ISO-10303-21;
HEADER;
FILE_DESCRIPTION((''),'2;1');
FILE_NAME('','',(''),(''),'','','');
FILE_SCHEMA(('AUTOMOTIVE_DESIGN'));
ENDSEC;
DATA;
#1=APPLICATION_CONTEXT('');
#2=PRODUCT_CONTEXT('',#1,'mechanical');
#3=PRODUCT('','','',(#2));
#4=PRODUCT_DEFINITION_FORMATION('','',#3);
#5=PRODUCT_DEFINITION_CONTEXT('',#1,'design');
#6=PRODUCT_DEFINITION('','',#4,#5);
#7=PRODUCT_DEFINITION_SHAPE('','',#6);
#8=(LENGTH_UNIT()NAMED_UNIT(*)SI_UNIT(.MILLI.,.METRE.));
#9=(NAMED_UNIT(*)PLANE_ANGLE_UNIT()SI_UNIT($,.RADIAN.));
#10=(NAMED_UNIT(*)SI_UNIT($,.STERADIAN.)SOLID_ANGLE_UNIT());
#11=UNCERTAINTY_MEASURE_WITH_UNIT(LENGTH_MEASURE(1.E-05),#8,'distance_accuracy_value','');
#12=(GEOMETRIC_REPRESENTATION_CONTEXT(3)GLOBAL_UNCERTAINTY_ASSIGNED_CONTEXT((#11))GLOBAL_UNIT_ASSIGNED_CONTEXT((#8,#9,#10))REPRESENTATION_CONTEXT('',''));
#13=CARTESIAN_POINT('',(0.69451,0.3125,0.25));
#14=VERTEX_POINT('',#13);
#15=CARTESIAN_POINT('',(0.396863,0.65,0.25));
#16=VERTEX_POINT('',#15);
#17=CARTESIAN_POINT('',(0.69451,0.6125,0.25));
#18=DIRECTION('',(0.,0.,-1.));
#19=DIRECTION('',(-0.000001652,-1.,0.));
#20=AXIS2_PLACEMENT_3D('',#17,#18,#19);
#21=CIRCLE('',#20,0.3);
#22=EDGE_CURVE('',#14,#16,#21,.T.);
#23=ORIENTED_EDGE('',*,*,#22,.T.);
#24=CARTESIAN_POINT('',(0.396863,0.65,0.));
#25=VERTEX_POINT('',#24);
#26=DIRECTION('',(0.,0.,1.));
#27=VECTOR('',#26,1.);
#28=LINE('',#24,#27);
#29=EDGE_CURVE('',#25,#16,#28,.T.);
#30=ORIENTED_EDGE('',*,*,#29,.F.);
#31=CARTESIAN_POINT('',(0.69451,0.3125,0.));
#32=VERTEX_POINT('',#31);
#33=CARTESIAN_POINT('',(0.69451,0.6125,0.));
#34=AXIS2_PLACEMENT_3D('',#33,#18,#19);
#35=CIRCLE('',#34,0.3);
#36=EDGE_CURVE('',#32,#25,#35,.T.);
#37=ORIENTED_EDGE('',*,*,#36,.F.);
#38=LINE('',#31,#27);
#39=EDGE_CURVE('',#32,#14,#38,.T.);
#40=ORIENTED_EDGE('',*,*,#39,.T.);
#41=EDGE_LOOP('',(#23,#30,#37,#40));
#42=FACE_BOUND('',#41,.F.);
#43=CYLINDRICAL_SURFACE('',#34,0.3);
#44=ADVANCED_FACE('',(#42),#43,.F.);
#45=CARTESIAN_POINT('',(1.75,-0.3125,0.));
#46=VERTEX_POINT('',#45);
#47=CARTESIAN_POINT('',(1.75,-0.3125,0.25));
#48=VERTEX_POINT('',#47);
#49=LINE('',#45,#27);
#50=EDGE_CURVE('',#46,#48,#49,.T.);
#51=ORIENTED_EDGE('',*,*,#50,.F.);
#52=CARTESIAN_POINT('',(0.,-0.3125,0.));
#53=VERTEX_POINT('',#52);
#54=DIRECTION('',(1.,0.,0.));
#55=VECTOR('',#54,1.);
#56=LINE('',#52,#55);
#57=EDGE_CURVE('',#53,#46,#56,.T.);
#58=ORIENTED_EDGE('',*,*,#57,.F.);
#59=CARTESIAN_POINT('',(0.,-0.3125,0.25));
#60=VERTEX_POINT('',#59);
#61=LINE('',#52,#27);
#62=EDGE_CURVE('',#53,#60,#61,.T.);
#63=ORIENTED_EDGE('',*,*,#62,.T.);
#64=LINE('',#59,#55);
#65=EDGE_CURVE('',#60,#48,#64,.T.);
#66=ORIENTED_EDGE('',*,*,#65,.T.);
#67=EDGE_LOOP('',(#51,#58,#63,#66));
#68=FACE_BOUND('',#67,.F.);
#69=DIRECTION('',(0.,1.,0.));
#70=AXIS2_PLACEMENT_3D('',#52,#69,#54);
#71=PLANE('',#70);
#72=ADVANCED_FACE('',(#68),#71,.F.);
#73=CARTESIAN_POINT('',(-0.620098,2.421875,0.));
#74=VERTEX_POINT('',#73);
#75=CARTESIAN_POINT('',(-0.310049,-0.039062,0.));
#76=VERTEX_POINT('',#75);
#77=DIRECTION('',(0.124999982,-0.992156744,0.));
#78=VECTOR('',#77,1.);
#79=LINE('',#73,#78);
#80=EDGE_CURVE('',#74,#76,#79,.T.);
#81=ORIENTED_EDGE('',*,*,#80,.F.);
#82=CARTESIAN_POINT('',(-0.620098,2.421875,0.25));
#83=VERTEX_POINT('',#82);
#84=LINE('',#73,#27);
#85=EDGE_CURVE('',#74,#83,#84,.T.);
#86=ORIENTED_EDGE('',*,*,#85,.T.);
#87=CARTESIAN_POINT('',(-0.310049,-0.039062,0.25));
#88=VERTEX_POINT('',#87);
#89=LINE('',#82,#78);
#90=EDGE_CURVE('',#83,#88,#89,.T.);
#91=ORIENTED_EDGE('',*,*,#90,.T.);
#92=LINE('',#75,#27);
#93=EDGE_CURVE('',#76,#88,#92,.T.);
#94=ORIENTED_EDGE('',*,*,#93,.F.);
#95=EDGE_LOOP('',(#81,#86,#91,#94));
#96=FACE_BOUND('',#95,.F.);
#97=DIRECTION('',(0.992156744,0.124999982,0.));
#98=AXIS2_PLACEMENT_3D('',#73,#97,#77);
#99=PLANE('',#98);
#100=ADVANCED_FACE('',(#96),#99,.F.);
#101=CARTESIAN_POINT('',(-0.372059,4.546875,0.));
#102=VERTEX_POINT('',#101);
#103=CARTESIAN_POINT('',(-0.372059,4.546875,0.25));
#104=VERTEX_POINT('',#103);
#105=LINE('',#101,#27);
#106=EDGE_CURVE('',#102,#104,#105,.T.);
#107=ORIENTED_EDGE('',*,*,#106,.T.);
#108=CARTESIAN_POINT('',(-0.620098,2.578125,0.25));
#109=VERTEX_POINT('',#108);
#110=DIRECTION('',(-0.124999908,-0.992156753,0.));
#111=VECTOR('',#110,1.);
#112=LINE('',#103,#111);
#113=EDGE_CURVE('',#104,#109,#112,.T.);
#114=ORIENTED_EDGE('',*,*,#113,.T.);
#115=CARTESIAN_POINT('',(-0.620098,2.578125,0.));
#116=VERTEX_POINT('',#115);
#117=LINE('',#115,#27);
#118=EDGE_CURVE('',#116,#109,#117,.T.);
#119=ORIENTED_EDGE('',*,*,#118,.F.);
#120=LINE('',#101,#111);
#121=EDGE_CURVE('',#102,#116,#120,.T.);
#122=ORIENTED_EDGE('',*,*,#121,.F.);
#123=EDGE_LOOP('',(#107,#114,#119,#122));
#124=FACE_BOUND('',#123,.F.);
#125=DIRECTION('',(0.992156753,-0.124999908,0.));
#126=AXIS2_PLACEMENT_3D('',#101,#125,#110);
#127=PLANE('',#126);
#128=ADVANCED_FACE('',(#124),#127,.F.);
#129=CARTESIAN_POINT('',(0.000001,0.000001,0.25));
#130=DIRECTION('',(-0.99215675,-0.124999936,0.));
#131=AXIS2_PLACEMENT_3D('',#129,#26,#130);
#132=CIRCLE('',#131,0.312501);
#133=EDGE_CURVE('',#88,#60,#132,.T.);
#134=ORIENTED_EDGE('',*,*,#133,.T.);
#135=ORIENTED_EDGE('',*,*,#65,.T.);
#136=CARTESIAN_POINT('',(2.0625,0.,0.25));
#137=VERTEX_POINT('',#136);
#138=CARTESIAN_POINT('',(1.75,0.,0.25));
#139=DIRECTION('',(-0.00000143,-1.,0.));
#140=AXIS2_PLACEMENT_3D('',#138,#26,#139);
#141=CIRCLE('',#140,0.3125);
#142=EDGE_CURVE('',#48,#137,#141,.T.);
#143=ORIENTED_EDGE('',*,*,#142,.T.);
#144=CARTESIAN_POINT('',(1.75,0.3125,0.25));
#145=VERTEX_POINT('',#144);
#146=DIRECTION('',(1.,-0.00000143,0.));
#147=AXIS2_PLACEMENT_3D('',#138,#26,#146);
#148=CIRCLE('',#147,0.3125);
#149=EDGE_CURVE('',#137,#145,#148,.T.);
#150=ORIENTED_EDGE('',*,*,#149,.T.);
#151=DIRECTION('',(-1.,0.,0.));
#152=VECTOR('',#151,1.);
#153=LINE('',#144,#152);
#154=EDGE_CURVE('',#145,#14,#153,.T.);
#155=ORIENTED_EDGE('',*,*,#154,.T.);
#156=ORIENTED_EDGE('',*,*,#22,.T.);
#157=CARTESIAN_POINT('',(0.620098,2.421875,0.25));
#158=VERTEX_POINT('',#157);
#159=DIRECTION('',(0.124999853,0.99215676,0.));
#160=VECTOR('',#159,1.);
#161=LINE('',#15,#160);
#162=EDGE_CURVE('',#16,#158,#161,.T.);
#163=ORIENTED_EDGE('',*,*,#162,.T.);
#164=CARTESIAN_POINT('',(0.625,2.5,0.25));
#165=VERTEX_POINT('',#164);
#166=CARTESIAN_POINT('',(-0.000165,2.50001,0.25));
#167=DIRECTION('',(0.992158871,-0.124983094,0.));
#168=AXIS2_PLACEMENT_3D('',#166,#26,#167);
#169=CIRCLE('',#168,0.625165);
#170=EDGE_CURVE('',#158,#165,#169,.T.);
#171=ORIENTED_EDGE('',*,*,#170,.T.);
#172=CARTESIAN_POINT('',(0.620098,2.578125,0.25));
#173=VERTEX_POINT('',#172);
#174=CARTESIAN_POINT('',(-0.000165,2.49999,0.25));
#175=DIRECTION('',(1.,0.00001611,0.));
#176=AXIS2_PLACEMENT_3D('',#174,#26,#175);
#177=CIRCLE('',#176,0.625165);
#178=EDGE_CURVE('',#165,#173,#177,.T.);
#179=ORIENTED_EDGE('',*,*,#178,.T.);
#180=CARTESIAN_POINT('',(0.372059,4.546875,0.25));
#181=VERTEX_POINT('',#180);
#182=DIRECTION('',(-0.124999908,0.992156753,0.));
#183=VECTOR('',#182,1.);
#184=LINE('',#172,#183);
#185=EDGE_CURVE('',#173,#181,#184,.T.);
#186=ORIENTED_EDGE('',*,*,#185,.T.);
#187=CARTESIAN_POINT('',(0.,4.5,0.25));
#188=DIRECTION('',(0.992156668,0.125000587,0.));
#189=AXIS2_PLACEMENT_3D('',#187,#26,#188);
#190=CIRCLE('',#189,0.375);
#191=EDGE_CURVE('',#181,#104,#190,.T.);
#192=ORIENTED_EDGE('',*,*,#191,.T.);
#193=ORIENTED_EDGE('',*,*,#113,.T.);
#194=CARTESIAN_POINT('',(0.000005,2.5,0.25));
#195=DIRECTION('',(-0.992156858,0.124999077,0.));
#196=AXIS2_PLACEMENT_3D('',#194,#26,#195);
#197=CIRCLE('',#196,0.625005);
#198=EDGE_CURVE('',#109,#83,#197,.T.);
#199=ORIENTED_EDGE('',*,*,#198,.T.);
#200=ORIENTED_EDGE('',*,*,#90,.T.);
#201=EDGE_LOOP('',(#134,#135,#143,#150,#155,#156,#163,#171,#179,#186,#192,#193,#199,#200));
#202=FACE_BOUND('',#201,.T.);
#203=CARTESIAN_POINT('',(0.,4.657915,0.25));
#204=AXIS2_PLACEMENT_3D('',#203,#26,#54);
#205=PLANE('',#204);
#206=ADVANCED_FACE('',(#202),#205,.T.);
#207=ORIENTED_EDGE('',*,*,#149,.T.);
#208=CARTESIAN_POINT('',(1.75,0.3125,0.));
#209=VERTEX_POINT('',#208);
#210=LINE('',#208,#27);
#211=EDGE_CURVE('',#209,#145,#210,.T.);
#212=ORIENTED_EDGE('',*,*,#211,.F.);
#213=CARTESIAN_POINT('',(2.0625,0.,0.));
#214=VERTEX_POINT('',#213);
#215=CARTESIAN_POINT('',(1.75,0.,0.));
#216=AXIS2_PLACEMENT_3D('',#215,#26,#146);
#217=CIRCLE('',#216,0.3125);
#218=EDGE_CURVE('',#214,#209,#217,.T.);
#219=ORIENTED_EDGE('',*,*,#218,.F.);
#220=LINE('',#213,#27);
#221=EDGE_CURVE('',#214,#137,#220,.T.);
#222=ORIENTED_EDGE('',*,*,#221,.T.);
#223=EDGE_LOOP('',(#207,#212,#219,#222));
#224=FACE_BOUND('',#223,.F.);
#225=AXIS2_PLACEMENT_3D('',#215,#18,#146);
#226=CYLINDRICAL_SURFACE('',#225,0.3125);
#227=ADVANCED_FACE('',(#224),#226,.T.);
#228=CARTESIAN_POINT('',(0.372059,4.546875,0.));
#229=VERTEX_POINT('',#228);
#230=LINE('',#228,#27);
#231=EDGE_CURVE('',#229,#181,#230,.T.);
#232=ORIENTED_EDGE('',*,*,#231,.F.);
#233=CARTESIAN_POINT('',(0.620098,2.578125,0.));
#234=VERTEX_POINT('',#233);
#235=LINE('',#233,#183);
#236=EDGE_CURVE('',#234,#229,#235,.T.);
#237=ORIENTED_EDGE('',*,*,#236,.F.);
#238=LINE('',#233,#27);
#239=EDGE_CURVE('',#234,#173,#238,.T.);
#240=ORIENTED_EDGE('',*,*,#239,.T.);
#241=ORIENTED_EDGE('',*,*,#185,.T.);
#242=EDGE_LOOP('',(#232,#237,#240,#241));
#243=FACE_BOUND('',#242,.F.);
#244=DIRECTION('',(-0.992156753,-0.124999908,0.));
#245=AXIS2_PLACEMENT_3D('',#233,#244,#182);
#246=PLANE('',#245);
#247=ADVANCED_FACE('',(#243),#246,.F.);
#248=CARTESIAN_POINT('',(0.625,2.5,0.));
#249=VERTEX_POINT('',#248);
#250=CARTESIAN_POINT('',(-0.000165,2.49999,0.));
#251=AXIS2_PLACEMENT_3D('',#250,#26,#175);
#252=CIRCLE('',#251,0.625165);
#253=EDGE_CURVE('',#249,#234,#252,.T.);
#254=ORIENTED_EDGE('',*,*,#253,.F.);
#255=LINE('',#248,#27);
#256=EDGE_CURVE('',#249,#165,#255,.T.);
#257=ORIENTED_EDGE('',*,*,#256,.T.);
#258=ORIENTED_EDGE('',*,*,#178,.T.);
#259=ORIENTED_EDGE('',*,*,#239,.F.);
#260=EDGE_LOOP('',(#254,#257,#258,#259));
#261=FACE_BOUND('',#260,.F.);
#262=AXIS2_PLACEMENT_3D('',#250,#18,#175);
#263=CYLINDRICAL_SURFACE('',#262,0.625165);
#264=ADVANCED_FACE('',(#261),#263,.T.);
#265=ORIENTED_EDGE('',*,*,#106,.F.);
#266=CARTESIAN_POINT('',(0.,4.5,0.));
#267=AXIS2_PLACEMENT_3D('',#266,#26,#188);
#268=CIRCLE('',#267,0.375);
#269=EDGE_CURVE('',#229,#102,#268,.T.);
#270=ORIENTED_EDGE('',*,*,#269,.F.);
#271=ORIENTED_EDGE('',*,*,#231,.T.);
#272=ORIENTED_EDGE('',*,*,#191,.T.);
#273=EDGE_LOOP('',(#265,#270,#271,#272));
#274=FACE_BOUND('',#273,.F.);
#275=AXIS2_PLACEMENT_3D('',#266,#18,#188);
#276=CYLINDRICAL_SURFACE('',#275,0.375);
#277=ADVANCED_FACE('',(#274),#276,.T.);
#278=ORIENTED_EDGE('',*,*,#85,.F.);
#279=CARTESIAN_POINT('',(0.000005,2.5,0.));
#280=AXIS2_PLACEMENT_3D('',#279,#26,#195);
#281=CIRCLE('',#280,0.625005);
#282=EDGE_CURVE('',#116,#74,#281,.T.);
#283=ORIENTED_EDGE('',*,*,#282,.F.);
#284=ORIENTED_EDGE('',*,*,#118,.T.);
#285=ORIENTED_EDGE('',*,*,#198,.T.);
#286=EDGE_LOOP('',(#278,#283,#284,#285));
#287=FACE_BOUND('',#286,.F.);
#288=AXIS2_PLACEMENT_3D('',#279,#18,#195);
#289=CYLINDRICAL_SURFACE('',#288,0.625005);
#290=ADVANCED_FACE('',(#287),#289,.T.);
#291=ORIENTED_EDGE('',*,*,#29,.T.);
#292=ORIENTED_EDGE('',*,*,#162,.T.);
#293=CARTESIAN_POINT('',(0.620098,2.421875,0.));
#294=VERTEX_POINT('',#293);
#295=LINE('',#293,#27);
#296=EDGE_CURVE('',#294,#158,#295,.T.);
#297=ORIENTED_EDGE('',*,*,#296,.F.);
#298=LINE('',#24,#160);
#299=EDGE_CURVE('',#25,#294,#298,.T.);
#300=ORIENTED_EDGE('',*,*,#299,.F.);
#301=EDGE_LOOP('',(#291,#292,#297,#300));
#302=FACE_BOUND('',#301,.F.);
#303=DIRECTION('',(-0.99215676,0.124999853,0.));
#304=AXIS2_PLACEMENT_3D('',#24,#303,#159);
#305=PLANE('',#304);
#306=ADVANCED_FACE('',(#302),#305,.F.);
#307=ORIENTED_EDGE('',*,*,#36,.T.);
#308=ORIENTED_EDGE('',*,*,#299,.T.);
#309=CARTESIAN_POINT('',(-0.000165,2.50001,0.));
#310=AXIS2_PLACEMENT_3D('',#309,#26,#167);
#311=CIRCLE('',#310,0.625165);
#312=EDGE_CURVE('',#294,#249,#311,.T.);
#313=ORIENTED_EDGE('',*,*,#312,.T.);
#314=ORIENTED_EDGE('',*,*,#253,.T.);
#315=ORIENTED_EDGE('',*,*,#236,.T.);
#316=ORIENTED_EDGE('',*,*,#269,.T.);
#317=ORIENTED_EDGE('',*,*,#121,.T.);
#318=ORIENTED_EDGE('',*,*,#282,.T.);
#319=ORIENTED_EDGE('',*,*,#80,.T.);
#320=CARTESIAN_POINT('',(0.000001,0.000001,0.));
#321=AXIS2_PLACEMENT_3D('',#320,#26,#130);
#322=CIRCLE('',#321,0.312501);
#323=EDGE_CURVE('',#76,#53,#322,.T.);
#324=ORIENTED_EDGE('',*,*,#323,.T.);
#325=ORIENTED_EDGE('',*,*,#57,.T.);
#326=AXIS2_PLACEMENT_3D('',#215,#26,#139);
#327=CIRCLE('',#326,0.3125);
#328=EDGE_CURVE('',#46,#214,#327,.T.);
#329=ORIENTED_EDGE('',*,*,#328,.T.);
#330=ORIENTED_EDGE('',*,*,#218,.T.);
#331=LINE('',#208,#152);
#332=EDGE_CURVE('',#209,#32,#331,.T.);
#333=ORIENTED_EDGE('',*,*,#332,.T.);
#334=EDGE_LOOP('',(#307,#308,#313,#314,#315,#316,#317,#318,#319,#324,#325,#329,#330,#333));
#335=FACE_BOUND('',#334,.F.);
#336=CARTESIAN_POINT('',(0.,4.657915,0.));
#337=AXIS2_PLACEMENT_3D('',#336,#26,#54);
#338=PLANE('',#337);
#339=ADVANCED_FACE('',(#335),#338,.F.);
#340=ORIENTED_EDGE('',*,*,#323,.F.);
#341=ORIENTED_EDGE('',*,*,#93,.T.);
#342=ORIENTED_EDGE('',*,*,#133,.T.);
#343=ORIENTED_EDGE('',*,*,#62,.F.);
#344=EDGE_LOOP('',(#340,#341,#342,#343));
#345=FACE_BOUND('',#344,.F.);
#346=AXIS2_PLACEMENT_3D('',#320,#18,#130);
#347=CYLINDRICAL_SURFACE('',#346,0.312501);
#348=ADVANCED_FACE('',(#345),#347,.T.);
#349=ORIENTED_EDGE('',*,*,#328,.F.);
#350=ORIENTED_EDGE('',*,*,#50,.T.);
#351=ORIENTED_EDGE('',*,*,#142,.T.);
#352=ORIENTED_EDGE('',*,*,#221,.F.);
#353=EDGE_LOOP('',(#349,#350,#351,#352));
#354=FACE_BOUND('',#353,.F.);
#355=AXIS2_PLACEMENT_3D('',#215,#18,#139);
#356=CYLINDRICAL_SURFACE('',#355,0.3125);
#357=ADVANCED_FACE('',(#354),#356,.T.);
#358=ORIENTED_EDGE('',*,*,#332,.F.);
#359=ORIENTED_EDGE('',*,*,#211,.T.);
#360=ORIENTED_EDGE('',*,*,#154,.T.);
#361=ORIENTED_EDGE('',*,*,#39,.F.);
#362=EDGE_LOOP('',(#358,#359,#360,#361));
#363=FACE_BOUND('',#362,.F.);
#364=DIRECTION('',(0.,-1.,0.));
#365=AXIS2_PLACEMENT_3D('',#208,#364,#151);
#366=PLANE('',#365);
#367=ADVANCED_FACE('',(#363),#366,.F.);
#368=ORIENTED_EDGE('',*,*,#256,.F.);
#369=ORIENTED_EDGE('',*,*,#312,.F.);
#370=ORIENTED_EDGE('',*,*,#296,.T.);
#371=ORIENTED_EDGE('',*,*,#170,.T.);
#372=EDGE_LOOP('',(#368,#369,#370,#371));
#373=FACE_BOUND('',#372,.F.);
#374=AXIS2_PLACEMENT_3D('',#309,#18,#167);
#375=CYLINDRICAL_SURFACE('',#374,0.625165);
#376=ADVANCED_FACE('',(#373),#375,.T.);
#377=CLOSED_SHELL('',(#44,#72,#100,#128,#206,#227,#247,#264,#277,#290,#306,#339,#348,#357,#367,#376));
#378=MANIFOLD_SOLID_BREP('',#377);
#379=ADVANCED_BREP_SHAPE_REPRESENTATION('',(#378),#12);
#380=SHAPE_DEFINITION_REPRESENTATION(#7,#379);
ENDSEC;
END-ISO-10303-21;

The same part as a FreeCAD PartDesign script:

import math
import FreeCAD as App
import Part
import Sketcher
from FreeCAD import Vector
Q = App.Units.Quantity

doc = App.newDocument("Part")
body = doc.addObject("PartDesign::Body", "Body")

# Sketch on XY plane
sketch1 = doc.addObject("Sketcher::SketchObject", "Sketch")
body.addObject(sketch1)
sketch1.AttachmentSupport = (doc.XY_Plane, [""])
sketch1.MapMode = "FlatFace"
sketch1.addGeometry(Part.ArcOfCircle(Part.Circle(Vector(0, 4.5, 0), Vector(0, 0, 1), 0.375), math.radians(7.18079), math.radians(172.81921)), False)
sketch1.addGeometry(Part.LineSegment(Vector(-0.372059, 4.546875, 0), Vector(-0.620098, 2.578125, 0)), False)
sketch1.addGeometry(Part.ArcOfCircle(Part.Circle(Vector(0.000005, 2.5, 0), Vector(0, 0, 1), 0.625005), math.radians(172.819297), math.radians(187.180703)), False)
sketch1.addGeometry(Part.LineSegment(Vector(-0.620098, 2.421875, 0), Vector(-0.310049, -0.039062, 0)), False)
sketch1.addGeometry(Part.ArcOfCircle(Part.Circle(Vector(0.000001, 0.000001, 0), Vector(0, 0, 1), 0.312501), math.radians(-172.819248), math.radians(-90.000097)), False)
sketch1.addGeometry(Part.LineSegment(Vector(0, -0.3125, 0), Vector(1.75, -0.3125, 0)), False)
sketch1.addGeometry(Part.ArcOfCircle(Part.Circle(Vector(1.75, 0, 0), Vector(0, 0, 1), 0.3125), math.radians(-90.000082), math.radians(0.000082)), False)
sketch1.addGeometry(Part.ArcOfCircle(Part.Circle(Vector(1.75, 0, 0), Vector(0, 0, 1), 0.3125), math.radians(-0.000082), math.radians(90.000082)), False)
sketch1.addGeometry(Part.LineSegment(Vector(1.75, 0.3125, 0), Vector(0.69451, 0.3125, 0)), False)
sketch1.addGeometry(Part.ArcOfCircle(Part.Circle(Vector(0.69451, 0.6125, 0), Vector(0, 0, 1), 0.3), math.radians(172.819335), math.radians(269.999905)), False)
sketch1.addGeometry(Part.LineSegment(Vector(0.396863, 0.65, 0), Vector(0.620098, 2.421875, 0)), False)
sketch1.addGeometry(Part.ArcOfCircle(Part.Circle(Vector(-0.000165, 2.50001, 0), Vector(0, 0, 1), 0.625165), math.radians(-7.179779), math.radians(-0.000923)), False)
sketch1.addGeometry(Part.ArcOfCircle(Part.Circle(Vector(-0.000165, 2.49999, 0), Vector(0, 0, 1), 0.625165), math.radians(0.000923), math.radians(7.179779)), False)
sketch1.addGeometry(Part.LineSegment(Vector(0.620098, 2.578125, 0), Vector(0.372059, 4.546875, 0)), False)
sketch1.addConstraint(Sketcher.Constraint("Coincident", 0, 2, 1, 1))
sketch1.addConstraint(Sketcher.Constraint("Coincident", 1, 2, 2, 1))
sketch1.addConstraint(Sketcher.Constraint("Coincident", 2, 2, 3, 1))
sketch1.addConstraint(Sketcher.Constraint("Coincident", 3, 2, 4, 1))
sketch1.addConstraint(Sketcher.Constraint("Coincident", 4, 2, 5, 1))
sketch1.addConstraint(Sketcher.Constraint("Coincident", 5, 2, 6, 1))
sketch1.addConstraint(Sketcher.Constraint("Coincident", 6, 2, 7, 1))
sketch1.addConstraint(Sketcher.Constraint("Coincident", 7, 2, 8, 1))
sketch1.addConstraint(Sketcher.Constraint("Coincident", 8, 2, 9, 2))
sketch1.addConstraint(Sketcher.Constraint("Coincident", 9, 1, 10, 1))
sketch1.addConstraint(Sketcher.Constraint("Coincident", 10, 2, 11, 1))
sketch1.addConstraint(Sketcher.Constraint("Coincident", 11, 2, 12, 1))
sketch1.addConstraint(Sketcher.Constraint("Coincident", 12, 2, 13, 1))
sketch1.addConstraint(Sketcher.Constraint("Coincident", 13, 2, 0, 1))
sketch1.addConstraint(Sketcher.Constraint("Horizontal", 5))
sketch1.addConstraint(Sketcher.Constraint("Horizontal", 8))
sketch1.addConstraint(Sketcher.Constraint("Coincident", 4, 3, -1, 1))
sketch1.addConstraint(Sketcher.Constraint("Coincident", 7, 3, 6, 3))
sketch1.addConstraint(Sketcher.Constraint("PointOnObject", 0, 3, -2))
sketch1.addConstraint(Sketcher.Constraint("PointOnObject", 6, 3, -1))
sketch1.addConstraint(Sketcher.Constraint("PointOnObject", 4, 2, -2))
sketch1.addConstraint(Sketcher.Constraint("PointOnObject", 6, 2, -1))
sketch1.addConstraint(Sketcher.Constraint("Radius", 9, Q("0.3 mm")))
sketch1.addConstraint(Sketcher.Constraint("Radius", 0, Q("0.375 mm")))
sketch1.addConstraint(Sketcher.Constraint("DistanceY", 2, 3, 0, 3, Q("2 mm")))
sketch1.addConstraint(Sketcher.Constraint("DistanceX", 5, 1, 5, 2, Q("1.75 mm")))
sketch1.addConstraint(Sketcher.Constraint("DistanceY", -1, 1, 0, 3, Q("4.5 mm")))
sketch1.addConstraint(Sketcher.Constraint("DistanceY", -1, 1, 11, 2, Q("2.5 mm")))
sketch1.addConstraint(Sketcher.Constraint("Radius", 4, Q("0.312501 mm")))
sketch1.addConstraint(Sketcher.Constraint("DistanceX", -1, 1, 6, 3, Q("1.75 mm")))
sketch1.addConstraint(Sketcher.Constraint("DistanceX", -1, 1, 7, 2, Q("1.75 mm")))
sketch1.addConstraint(Sketcher.Constraint("DistanceY", -1, 1, 9, 1, Q("0.65 mm")))
sketch1.addConstraint(Sketcher.Constraint("DistanceX", -1, 1, 11, 2, Q("0.625 mm")))
sketch1.addConstraint(Sketcher.Constraint("Radius", 2, Q("0.625005 mm")))
sketch1.addConstraint(Sketcher.Constraint("Radius", 11, Q("0.625165 mm")))
sketch1.addConstraint(Sketcher.Constraint("Radius", 12, Q("0.625165 mm")))
sketch1.addConstraint(Sketcher.Constraint("DistanceY", 2, 2, 0, 2, Q("2.125 mm")))
sketch1.addConstraint(Sketcher.Constraint("DistanceX", 8, 2, 8, 1, Q("1.05549 mm")))
sketch1.addConstraint(Sketcher.Constraint("DistanceX", 1, 2, -1, 1, Q("0.620098 mm")))
sketch1.addConstraint(Sketcher.Constraint("DistanceX", -1, 1, 10, 2, Q("0.620098 mm")))
sketch1.addConstraint(Sketcher.Constraint("DistanceX", 12, 2, 11, 2, Q("0.004902 mm")))
sketch1.addConstraint(Sketcher.Constraint("Distance", 3, Q("2.480391 mm")))
sketch1.addConstraint(Sketcher.Constraint("DistanceX", -1, 1, 9, 3, Q("0.69451 mm")))
sketch1.addConstraint(Sketcher.Constraint("DistanceY", -1, 1, 11, 3, Q("2.50001 mm")))
sketch1.addConstraint(Sketcher.Constraint("DistanceY", -1, 1, 12, 3, Q("2.49999 mm")))
sketch1.addConstraint(Sketcher.Constraint("DistanceX", 0, 2, -1, 1, Q("0.372059 mm")))
sketch1.addConstraint(Sketcher.Constraint("DistanceX", -1, 1, 13, 2, Q("0.372059 mm")))
sketch1.addConstraint(Sketcher.Constraint("DistanceX", 11, 3, 2, 3, Q("0.00017 mm")))
pad1 = doc.addObject("PartDesign::Pad", "Pad")
body.addObject(pad1)
pad1.Profile = sketch1
pad1.Length = 0.25

doc.recompute()
